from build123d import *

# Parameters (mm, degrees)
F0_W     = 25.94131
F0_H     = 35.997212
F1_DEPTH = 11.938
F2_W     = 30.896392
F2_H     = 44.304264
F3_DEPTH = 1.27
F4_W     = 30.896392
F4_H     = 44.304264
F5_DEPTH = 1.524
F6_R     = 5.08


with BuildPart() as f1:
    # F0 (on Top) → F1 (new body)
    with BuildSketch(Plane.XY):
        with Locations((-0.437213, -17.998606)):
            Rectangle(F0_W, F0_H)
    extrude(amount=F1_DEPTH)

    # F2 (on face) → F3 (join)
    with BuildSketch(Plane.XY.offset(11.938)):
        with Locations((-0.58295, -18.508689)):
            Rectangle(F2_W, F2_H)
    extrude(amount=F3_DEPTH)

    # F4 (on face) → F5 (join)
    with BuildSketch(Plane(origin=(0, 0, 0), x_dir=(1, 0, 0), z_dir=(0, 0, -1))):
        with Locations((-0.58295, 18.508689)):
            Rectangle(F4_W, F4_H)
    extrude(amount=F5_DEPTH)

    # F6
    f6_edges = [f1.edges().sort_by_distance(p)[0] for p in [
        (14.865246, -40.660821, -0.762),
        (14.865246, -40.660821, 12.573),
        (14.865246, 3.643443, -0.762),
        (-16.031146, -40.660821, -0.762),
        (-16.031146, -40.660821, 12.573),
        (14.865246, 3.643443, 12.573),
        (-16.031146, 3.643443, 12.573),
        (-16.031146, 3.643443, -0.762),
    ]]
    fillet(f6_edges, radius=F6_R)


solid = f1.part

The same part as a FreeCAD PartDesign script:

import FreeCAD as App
import Part
import Sketcher
Q = App.Units.Quantity


def edges_at(feature, points):
    """Names of the edges that pass closest to the given points."""
    edges = feature.Shape.Edges
    near = lambda p: min(range(len(edges)), key=lambda i: edges[i].distToShape(Part.Vertex(*p))[0])
    return sorted({f"Edge{near(p) + 1}" for p in points})


def add_polygon(sketch, points):
    """Adds a closed chain of lines whose ends are joined by coincident constraints."""
    first, n = sketch.GeometryCount, len(points)
    for a, b in zip(points, points[1:] + points[:1]):
        sketch.addGeometry(Part.LineSegment(App.Vector(*a, 0), App.Vector(*b, 0)), False)
    for i in range(n):
        sketch.addConstraint(Sketcher.Constraint("Coincident", first + i, 2, first + (i + 1) % n, 1))

doc = App.newDocument("Part")
body = doc.addObject("PartDesign::Body", "Body")

# Sketch on XY plane
sketch1 = body.newObject("Sketcher::SketchObject", "Sketch")
sketch1.AttachmentSupport = (doc.getObject("XY_Plane"), [""])
sketch1.MapMode = "FlatFace"
add_polygon(sketch1, [(-13.407868, 0), (-13.407868, -35.997212), (12.533442, -35.997212), (12.533442, 0)])  # lines 0-3
sketch1.addConstraint([
    Sketcher.Constraint("Vertical", 0),
    Sketcher.Constraint("Horizontal", 1),
    Sketcher.Constraint("Vertical", 2),
    Sketcher.Constraint("Horizontal", 3),
    Sketcher.Constraint("PointOnObject", 2, 2, -1),
    Sketcher.Constraint("DistanceX", 1, 1, 1, 2, Q("25.94131 mm")),
    Sketcher.Constraint("DistanceY", 0, 2, 0, 1, Q("35.997212 mm")),
    Sketcher.Constraint("DistanceX", 0, 2, -1, 1, Q("13.407868 mm")),
])
pad1 = body.newObject("PartDesign::Pad", "Pad")
pad1.Profile = sketch1
pad1.Length = Q("0.47 in")

# Sketch on XY plane
sketch2 = body.newObject("Sketcher::SketchObject", "Sketch001")
sketch2.AttachmentSupport = (doc.getObject("XY_Plane"), [""])
sketch2.MapMode = "FlatFace"
sketch2.AttachmentOffset = App.Placement(App.Vector(0, 0, 0.47 * 25.4), App.Rotation())
add_polygon(sketch2, [(-16.031146, 3.643443), (-16.031146, -40.660821), (14.865246, -40.660821), (14.865246, 3.643443)])  # lines 0-3
sketch2.addConstraint([
    Sketcher.Constraint("Vertical", 0),
    Sketcher.Constraint("Horizontal", 1),
    Sketcher.Constraint("Vertical", 2),
    Sketcher.Constraint("Horizontal", 3),
    Sketcher.Constraint("DistanceX", 1, 1, 1, 2, Q("30.896392 mm")),
    Sketcher.Constraint("DistanceY", 0, 2, 0, 1, Q("44.304264 mm")),
    Sketcher.Constraint("DistanceY", 0, 2, -1, 1, Q("40.660821 mm")),
    Sketcher.Constraint("DistanceX", 0, 2, -1, 1, Q("16.031146 mm")),
])
pad2 = body.newObject("PartDesign::Pad", "Pad001")
pad2.Profile = sketch2
pad2.Length = Q("0.05 in")

# Sketch on XY plane
sketch3 = body.newObject("Sketcher::SketchObject", "Sketch002")
sketch3.AttachmentSupport = (doc.getObject("XY_Plane"), [""])
sketch3.MapMode = "FlatFace"
add_polygon(sketch3, [(-16.031146, -40.660821), (-16.031146, 3.643443), (14.865246, 3.643443), (14.865246, -40.660821)])  # lines 0-3
sketch3.addConstraint([
    Sketcher.Constraint("Vertical", 0),
    Sketcher.Constraint("Horizontal", 1),
    Sketcher.Constraint("Vertical", 2),
    Sketcher.Constraint("Horizontal", 3),
    Sketcher.Constraint("DistanceX", 1, 1, 1, 2, Q("30.896392 mm")),
    Sketcher.Constraint("DistanceY", 0, 1, 0, 2, Q("44.304264 mm")),
    Sketcher.Constraint("DistanceY", 2, 2, -1, 1, Q("40.660821 mm")),
    Sketcher.Constraint("DistanceX", 0, 2, -1, 1, Q("16.031146 mm")),
])
pad3 = body.newObject("PartDesign::Pad", "Pad002")
pad3.Profile = sketch3
pad3.Length = Q("0.06 in")
pad3.Reversed = True
doc.recompute()

fillet = body.newObject("PartDesign::Fillet", "Fillet")
fillet.Base = (pad3, edges_at(pad3, [
    (14.865, -40.661, -0.762),
    (14.865, -40.661, 12.573),
    (14.865, 3.643, -0.762),
    (-16.031, -40.661, -0.762),
    (-16.031, -40.661, 12.573),
    (14.865, 3.643, 12.573),
    (-16.031, 3.643, 12.573),
    (-16.031, 3.643, -0.762),
]))
fillet.Radius = Q("0.2 in")

doc.recompute()
